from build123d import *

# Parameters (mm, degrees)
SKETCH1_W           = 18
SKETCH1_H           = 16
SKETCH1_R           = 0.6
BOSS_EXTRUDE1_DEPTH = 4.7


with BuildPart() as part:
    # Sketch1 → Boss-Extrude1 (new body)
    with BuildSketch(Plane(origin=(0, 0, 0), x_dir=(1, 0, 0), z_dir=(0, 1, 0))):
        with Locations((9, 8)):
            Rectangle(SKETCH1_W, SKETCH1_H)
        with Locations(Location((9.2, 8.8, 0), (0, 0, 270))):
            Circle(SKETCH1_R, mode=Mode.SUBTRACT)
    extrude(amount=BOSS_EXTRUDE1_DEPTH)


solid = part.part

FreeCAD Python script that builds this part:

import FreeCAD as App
import Part
import Sketcher

doc = App.newDocument("Part")
body = doc.addObject("PartDesign::Body", "Body")

sketch1 = body.newObject("Sketcher::SketchObject", "Sketch")
sketch1.AttachmentSupport = (doc.getObject("XZ_Plane"), [""])
sketch1.MapMode = "FlatFace"
sketch1.addGeometry(Part.LineSegment(App.Vector(0, -16, 0), App.Vector(0, 0, 0)), False)
sketch1.addGeometry(Part.LineSegment(App.Vector(0, 0, 0), App.Vector(18, 0, 0)), False)
sketch1.addGeometry(Part.LineSegment(App.Vector(18, 0, 0), App.Vector(18, -16, 0)), False)
sketch1.addGeometry(Part.LineSegment(App.Vector(18, -16, 0), App.Vector(0, -16, 0)), False)
sketch1.addGeometry(Part.Circle(App.Vector(9.2, -8.8, 0), App.Vector(0, 0, 1), 0.6), False)
sketch1.addConstraint(Sketcher.Constraint("Coincident", 0, 2, 1, 1))
sketch1.addConstraint(Sketcher.Constraint("Coincident", 1, 2, 2, 1))
sketch1.addConstraint(Sketcher.Constraint("Coincident", 2, 2, 3, 1))
sketch1.addConstraint(Sketcher.Constraint("Coincident", 3, 2, 0, 1))
sketch1.addConstraint(Sketcher.Constraint("Vertical", 0))
sketch1.addConstraint(Sketcher.Constraint("Horizontal", 1))
sketch1.addConstraint(Sketcher.Constraint("Vertical", 2))
sketch1.addConstraint(Sketcher.Constraint("Horizontal", 3))
sketch1.addConstraint(Sketcher.Constraint("Coincident", 0, 2, -1, 1))
sketch1.addConstraint(Sketcher.Constraint("Diameter", 4, 1.2))
sketch1.addConstraint(Sketcher.Constraint("DistanceX", 1, 1, 1, 2, 18.0))
sketch1.addConstraint(Sketcher.Constraint("DistanceY", 0, 1, 0, 2, 16.0))
sketch1.addConstraint(Sketcher.Constraint("DistanceX", -1, 1, 4, 3, 9.2))
sketch1.addConstraint(Sketcher.Constraint("DistanceY", 4, 3, -1, 1, 8.8))
pad1 = body.newObject("PartDesign::Pad", "Pad")
pad1.Profile = sketch1
pad1.Length = 4.7
pad1.Reversed = True

doc.recompute()
